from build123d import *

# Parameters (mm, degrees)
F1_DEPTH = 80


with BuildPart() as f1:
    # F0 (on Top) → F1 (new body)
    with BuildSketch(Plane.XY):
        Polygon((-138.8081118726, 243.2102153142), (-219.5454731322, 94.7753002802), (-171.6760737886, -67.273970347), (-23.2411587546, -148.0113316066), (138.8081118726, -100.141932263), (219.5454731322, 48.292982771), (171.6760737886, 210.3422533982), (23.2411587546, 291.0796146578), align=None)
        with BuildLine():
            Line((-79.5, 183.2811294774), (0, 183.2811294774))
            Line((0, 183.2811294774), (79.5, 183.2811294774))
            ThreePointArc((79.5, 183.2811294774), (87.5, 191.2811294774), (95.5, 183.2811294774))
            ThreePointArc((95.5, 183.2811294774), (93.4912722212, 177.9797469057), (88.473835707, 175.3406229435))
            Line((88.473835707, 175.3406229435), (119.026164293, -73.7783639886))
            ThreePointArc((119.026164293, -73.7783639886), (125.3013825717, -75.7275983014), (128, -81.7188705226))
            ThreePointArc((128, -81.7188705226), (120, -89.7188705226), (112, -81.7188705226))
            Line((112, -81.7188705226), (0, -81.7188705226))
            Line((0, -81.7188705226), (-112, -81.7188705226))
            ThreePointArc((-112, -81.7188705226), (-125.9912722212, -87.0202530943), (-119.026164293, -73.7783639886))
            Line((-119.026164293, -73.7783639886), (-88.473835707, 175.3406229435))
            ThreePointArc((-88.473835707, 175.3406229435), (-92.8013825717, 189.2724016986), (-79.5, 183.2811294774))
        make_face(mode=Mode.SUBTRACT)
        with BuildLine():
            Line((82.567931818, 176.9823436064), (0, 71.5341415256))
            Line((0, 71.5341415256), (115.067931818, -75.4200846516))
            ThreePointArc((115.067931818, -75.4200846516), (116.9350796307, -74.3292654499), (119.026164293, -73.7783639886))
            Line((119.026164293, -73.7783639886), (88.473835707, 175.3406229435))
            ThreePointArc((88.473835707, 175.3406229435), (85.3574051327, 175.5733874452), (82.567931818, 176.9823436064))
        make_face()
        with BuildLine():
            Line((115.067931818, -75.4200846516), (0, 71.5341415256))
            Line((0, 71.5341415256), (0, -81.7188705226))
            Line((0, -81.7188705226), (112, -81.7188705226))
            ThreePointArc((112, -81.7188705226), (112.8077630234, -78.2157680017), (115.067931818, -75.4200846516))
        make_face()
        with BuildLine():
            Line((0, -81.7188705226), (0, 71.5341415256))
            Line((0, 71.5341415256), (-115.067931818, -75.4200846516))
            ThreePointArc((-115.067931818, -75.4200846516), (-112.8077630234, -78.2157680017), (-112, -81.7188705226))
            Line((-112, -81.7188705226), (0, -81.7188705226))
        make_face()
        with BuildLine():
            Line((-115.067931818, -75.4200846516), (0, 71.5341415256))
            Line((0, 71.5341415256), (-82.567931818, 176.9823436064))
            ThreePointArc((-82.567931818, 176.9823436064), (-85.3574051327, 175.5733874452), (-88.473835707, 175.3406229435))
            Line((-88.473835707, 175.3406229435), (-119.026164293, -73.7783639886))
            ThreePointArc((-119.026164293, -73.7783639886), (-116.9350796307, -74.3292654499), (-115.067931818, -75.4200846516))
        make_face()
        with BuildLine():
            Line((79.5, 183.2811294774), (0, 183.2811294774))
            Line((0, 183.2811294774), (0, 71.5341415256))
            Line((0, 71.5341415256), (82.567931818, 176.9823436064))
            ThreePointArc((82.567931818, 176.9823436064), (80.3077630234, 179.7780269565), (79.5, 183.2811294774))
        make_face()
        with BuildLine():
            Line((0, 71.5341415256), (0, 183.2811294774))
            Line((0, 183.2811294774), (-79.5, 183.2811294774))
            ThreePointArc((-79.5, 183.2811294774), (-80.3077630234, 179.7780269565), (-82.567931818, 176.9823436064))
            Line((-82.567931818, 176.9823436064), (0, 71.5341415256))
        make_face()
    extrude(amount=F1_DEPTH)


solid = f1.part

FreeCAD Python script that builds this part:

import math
import FreeCAD as App
import Part
import Sketcher

V = App.Vector
Q = App.Units.Quantity


def add_polygon(sketch, points):
    """Adds a closed chain of lines whose ends are joined by coincident constraints."""
    first, n = sketch.GeometryCount, len(points)
    for a, b in zip(points, points[1:] + points[:1]):
        sketch.addGeometry(Part.LineSegment(App.Vector(*a, 0), App.Vector(*b, 0)), False)
    for i in range(n):
        sketch.addConstraint(Sketcher.Constraint("Coincident", first + i, 2, first + (i + 1) % n, 1))

doc = App.newDocument("Part")
body = doc.addObject("PartDesign::Body", "Body")

# Sketch on XY plane
sketch1 = body.newObject("Sketcher::SketchObject", "Sketch")
sketch1.AttachmentSupport = (doc.getObject("XY_Plane"), [""])
sketch1.MapMode = "FlatFace"
add_polygon(sketch1, [(-138.8, 243.2), (-219.5, 94.8), (-171.7, -67.3), (-23.2, -148), (138.8, -100.1), (219.5, 48.3), (171.7, 210.3), (23.2, 291.1)])  # lines 0-7
sketch1.addGeometry(Part.ArcOfCircle(Part.Circle(V(-87.5, 183.3, 0), V(0, 0, 1), 8), math.radians(0), math.radians(263)), False)  # 8
sketch1.addGeometry(Part.ArcOfCircle(Part.Circle(V(-87.5, 183.3, 0), V(0, 0, 1), 8), math.radians(-52), math.radians(0)), False)  # 9
sketch1.addGeometry(Part.ArcOfCircle(Part.Circle(V(-87.5, 183.3, 0), V(0, 0, 1), 8), math.radians(-97), math.radians(-52)), False)  # 10
sketch1.addGeometry(Part.ArcOfCircle(Part.Circle(V(87.5, 183.3, 0), V(0, 0, 1), 8), math.radians(0), math.radians(180)), False)  # 11
sketch1.addGeometry(Part.ArcOfCircle(Part.Circle(V(87.5, 183.3, 0), V(0, 0, 1), 8), math.radians(-83), math.radians(0)), False)  # 12
sketch1.addGeometry(Part.ArcOfCircle(Part.Circle(V(87.5, 183.3, 0), V(0, 0, 1), 8), math.radians(-128), math.radians(-83)), False)  # 13
sketch1.addGeometry(Part.ArcOfCircle(Part.Circle(V(87.5, 183.3, 0), V(0, 0, 1), 8), math.radians(-180), math.radians(-128)), False)  # 14
sketch1.addGeometry(Part.ArcOfCircle(Part.Circle(V(-120, -81.7, 0), V(0, 0, 1), 8), math.radians(0), math.radians(52)), False)  # 15
sketch1.addGeometry(Part.ArcOfCircle(Part.Circle(V(-120, -81.7, 0), V(0, 0, 1), 8), math.radians(83), math.radians(360)), False)  # 16
sketch1.addGeometry(Part.ArcOfCircle(Part.Circle(V(-120, -81.7, 0), V(0, 0, 1), 8), math.radians(52), math.radians(83)), False)  # 17
sketch1.addGeometry(Part.ArcOfCircle(Part.Circle(V(120, -81.7, 0), V(0, 0, 1), 8), math.radians(97), math.radians(128)), False)  # 18
sketch1.addGeometry(Part.ArcOfCircle(Part.Circle(V(120, -81.7, 0), V(0, 0, 1), 8), math.radians(0), math.radians(97)), False)  # 19
sketch1.addGeometry(Part.ArcOfCircle(Part.Circle(V(120, -81.7, 0), V(0, 0, 1), 8), math.radians(180), math.radians(360)), False)  # 20
sketch1.addGeometry(Part.ArcOfCircle(Part.Circle(V(120, -81.7, 0), V(0, 0, 1), 8), math.radians(128), math.radians(180)), False)  # 21
sketch1.addConstraint(Sketcher.Constraint("Tangent", 8, 1, 9, 2))
sketch1.addConstraint(Sketcher.Constraint("Tangent", 9, 1, 10, 2))
sketch1.addConstraint(Sketcher.Constraint("Tangent", 10, 1, 8, 2))
sketch1.addConstraint(Sketcher.Constraint("Tangent", 11, 1, 12, 2))
sketch1.addConstraint(Sketcher.Constraint("Tangent", 12, 1, 13, 2))
sketch1.addConstraint(Sketcher.Constraint("Tangent", 13, 1, 14, 2))
sketch1.addConstraint(Sketcher.Constraint("Tangent", 14, 1, 11, 2))
sketch1.addConstraint(Sketcher.Constraint("Tangent", 15, 1, 16, 2))
sketch1.addConstraint(Sketcher.Constraint("Tangent", 16, 1, 17, 2))
sketch1.addConstraint(Sketcher.Constraint("Tangent", 17, 1, 15, 2))
sketch1.addConstraint(Sketcher.Constraint("Tangent", 18, 1, 19, 2))
sketch1.addConstraint(Sketcher.Constraint("Tangent", 19, 1, 20, 2))
sketch1.addConstraint(Sketcher.Constraint("Tangent", 20, 1, 21, 2))
sketch1.addConstraint(Sketcher.Constraint("Tangent", 21, 1, 18, 2))
sketch1.addConstraint(Sketcher.Constraint("Equal", 10, 11))
sketch1.addConstraint(Sketcher.Constraint("Equal", 11, 12))
sketch1.addConstraint(Sketcher.Constraint("Equal", 14, 15))
sketch1.addConstraint(Sketcher.Constraint("Equal", 17, 18))
sketch1.addConstraint(Sketcher.Constraint("Equal", 18, 19))
sketch1.addConstraint(Sketcher.Constraint("Symmetric", 8, 3, 11, 3, -2))
sketch1.addConstraint(Sketcher.Constraint("Symmetric", 15, 3, 18, 3, -2))
sketch1.addConstraint(Sketcher.Constraint("Perpendicular", 0, 2))
sketch1.addConstraint(Sketcher.Constraint("Perpendicular", 1, 3))
sketch1.addConstraint(Sketcher.Constraint("Perpendicular", 2, 4))
sketch1.addConstraint(Sketcher.Constraint("Perpendicular", 3, 5))
sketch1.addConstraint(Sketcher.Constraint("Perpendicular", 4, 6))
sketch1.addConstraint(Sketcher.Constraint("Perpendicular", 5, 7))
sketch1.addConstraint(Sketcher.Constraint("Horizontal", 14, 3, 8, 1))
sketch1.addConstraint(Sketcher.Constraint("Horizontal", 8, 1, 11, 1))
sketch1.addConstraint(Sketcher.Constraint("Horizontal", 10, 1, 12, 1))
sketch1.addConstraint(Sketcher.Constraint("Horizontal", 9, 1, 13, 1))
sketch1.addConstraint(Sketcher.Constraint("Horizontal", 11, 1, 14, 1))
sketch1.addConstraint(Sketcher.Constraint("Horizontal", 21, 3, 15, 1))
sketch1.addConstraint(Sketcher.Constraint("Horizontal", 16, 1, 18, 1))
sketch1.addConstraint(Sketcher.Constraint("Horizontal", 15, 1, 19, 1))
sketch1.addConstraint(Sketcher.Constraint("Horizontal", 19, 1, 20, 1))
sketch1.addConstraint(Sketcher.Constraint("Horizontal", 17, 1, 21, 1))
sketch1.addConstraint(Sketcher.Constraint("Equal", 0, 1))
sketch1.addConstraint(Sketcher.Constraint("Equal", 1, 2))
sketch1.addConstraint(Sketcher.Constraint("Equal", 2, 3))
sketch1.addConstraint(Sketcher.Constraint("Equal", 3, 4))
sketch1.addConstraint(Sketcher.Constraint("Equal", 4, 5))
sketch1.addConstraint(Sketcher.Constraint("Radius", 8, Q("8 mm")))
sketch1.addConstraint(Sketcher.Constraint("DistanceX", 15, 3, -1, 1, Q("120 mm")))
sketch1.addConstraint(Sketcher.Constraint("DistanceX", 8, 3, 11, 3, Q("175 mm")))
sketch1.addConstraint(Sketcher.Constraint("DistanceY", 15, 3, 8, 3, Q("265 mm")))
sketch1.addConstraint(Sketcher.Constraint("DistanceY", -1, 1, 0, 2, Q("94.7753 mm")))
sketch1.addConstraint(Sketcher.Constraint("DistanceY", 15, 3, 1, 2, Q("14.4449 mm")))
sketch1.addConstraint(Sketcher.Constraint("DistanceX", 0, 2, 1, 2, Q("47.869399 mm")))
sketch1.addConstraint(Sketcher.Constraint("Distance", 0, Q("168.97173 mm")))
sketch1.addConstraint(Sketcher.Constraint("DistanceX", 2, 2, -1, 1, Q("23.241159 mm")))
sketch1.addConstraint(Sketcher.Constraint("DistanceY", 2, 2, -1, 1, Q("148.011332 mm")))
sketch1.addConstraint(Sketcher.Constraint("DistanceX", 9, 1, -1, 1, Q("82.567932 mm")))
sketch1.addConstraint(Sketcher.Constraint("DistanceX", 17, 1, -1, 1, Q("115.067932 mm")))
sketch1.addConstraint(Sketcher.Constraint("DistanceY", 10, 1, 9, 1, Q("1.641721 mm")))
sketch1.addConstraint(Sketcher.Constraint("DistanceX", 1, 2, 16, 1, Q("52.649909 mm")))
pad1 = body.newObject("PartDesign::Pad", "Pad")
pad1.Profile = sketch1
pad1.Length = 80

doc.recompute()
